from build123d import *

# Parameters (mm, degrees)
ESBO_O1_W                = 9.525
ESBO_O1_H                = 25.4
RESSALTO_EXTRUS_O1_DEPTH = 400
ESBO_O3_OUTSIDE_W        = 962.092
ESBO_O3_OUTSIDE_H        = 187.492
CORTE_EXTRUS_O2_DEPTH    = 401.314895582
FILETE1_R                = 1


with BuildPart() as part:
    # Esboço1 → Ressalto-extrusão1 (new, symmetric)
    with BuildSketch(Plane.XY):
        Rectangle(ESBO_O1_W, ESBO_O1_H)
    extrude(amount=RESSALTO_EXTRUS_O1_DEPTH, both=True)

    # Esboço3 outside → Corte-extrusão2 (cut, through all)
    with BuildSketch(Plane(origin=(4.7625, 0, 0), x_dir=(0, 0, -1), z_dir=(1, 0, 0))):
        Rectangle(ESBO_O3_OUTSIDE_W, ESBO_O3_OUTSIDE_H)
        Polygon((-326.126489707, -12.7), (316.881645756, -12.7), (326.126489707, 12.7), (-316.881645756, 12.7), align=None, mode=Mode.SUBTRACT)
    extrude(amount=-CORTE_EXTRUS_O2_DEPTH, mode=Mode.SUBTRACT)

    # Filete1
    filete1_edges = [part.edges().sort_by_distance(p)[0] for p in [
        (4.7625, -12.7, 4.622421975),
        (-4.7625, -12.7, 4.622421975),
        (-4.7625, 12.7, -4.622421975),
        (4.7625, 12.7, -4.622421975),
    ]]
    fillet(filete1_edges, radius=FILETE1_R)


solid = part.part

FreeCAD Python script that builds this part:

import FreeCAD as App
import Part
import Sketcher
Q = App.Units.Quantity


def edges_at(feature, points):
    """Names of the edges that pass closest to the given points."""
    edges = feature.Shape.Edges
    near = lambda p: min(range(len(edges)), key=lambda i: edges[i].distToShape(Part.Vertex(*p))[0])
    return sorted({f"Edge{near(p) + 1}" for p in points})

doc = App.newDocument("Part")
body = doc.addObject("PartDesign::Body", "Body")

# Sketch on XY plane
sketch1 = body.newObject("Sketcher::SketchObject", "Sketch")
sketch1.AttachmentSupport = (doc.getObject("XY_Plane"), [""])
sketch1.MapMode = "FlatFace"
sketch1.addGeometry([
    Part.LineSegment(App.Vector(-5, 13, 0), App.Vector(-5, -13, 0)),
    Part.LineSegment(App.Vector(-5, -13, 0), App.Vector(5, -13, 0)),
    Part.LineSegment(App.Vector(5, -13, 0), App.Vector(5, 13, 0)),
    Part.LineSegment(App.Vector(5, 13, 0), App.Vector(-5, 13, 0)),
], False)
sketch1.addConstraint([
    Sketcher.Constraint("Coincident", 0, 2, 1, 1),
    Sketcher.Constraint("Coincident", 1, 2, 2, 1),
    Sketcher.Constraint("Coincident", 2, 2, 3, 1),
    Sketcher.Constraint("Coincident", 3, 2, 0, 1),
    Sketcher.Constraint("Vertical", 0),
    Sketcher.Constraint("Horizontal", 1),
    Sketcher.Constraint("Vertical", 2),
    Sketcher.Constraint("Horizontal", 3),
    Sketcher.Constraint("Symmetric", 0, 2, 2, 2, -1, 1),
    Sketcher.Constraint("DistanceY", 0, 2, 0, 1, 25.4),
    Sketcher.Constraint("DistanceX", 1, 1, 1, 2, 9.525),
])
pad1 = body.newObject("PartDesign::Pad", "Pad")
pad1.Profile = sketch1
pad1.Length = 800
pad1.Midplane = True

# Sketch on YZ plane
sketch2 = body.newObject("Sketcher::SketchObject", "Sketch001")
sketch2.AttachmentSupport = (doc.getObject("YZ_Plane"), [""])
sketch2.MapMode = "FlatFace"
sketch2.AttachmentOffset = App.Placement(App.Vector(0, 0, 4.7625), App.Rotation())
sketch2.addGeometry([
    Part.LineSegment(App.Vector(94, 481, 0), App.Vector(-94, 481, 0)),  # 0
    Part.LineSegment(App.Vector(-94, 481, 0), App.Vector(-94, -481, 0)),  # 1
    Part.LineSegment(App.Vector(-94, -481, 0), App.Vector(94, -481, 0)),  # 2
    Part.LineSegment(App.Vector(94, -481, 0), App.Vector(94, 481, 0)),  # 3
    Part.LineSegment(App.Vector(-13, -317, 0), App.Vector(-13, 326, 0)),  # 4
    Part.LineSegment(App.Vector(-13, 326, 0), App.Vector(13, 317, 0)),  # 5
    Part.LineSegment(App.Vector(13, 317, 0), App.Vector(13, -326, 0)),  # 6
    Part.LineSegment(App.Vector(13, -326, 0), App.Vector(-13, -317, 0)),  # 7
], False)
sketch2.addConstraint([
    Sketcher.Constraint("Coincident", 0, 2, 1, 1),
    Sketcher.Constraint("Coincident", 1, 2, 2, 1),
    Sketcher.Constraint("Coincident", 2, 2, 3, 1),
    Sketcher.Constraint("Coincident", 3, 2, 0, 1),
    Sketcher.Constraint("Coincident", 4, 2, 5, 1),
    Sketcher.Constraint("Coincident", 5, 2, 6, 1),
    Sketcher.Constraint("Coincident", 6, 2, 7, 1),
    Sketcher.Constraint("Coincident", 7, 2, 4, 1),
    Sketcher.Constraint("Horizontal", 0),
    Sketcher.Constraint("Vertical", 1),
    Sketcher.Constraint("Horizontal", 2),
    Sketcher.Constraint("Vertical", 3),
    Sketcher.Constraint("Vertical", 4),
    Sketcher.Constraint("Vertical", 6),
    Sketcher.Constraint("Symmetric", 0, 2, 2, 2, -1, 1),
    Sketcher.Constraint("Symmetric", 4, 2, 6, 2, -1, 1),
    Sketcher.Constraint("Parallel", 5, 7),
    Sketcher.Constraint("Angle", 5, Q("-20 deg")),
    Sketcher.Constraint("DistanceX", 4, 2, -1, 1, 12.7),
    Sketcher.Constraint("DistanceX", 0, 2, 0, 1, 187.492),
    Sketcher.Constraint("DistanceY", 1, 2, 1, 1, 962.092),
    Sketcher.Constraint("DistanceY", 4, 1, 4, 2, 643.008135),
])
pocket1 = body.newObject("PartDesign::Pocket", "Pocket")
pocket1.Profile = sketch2
pocket1.Type = "ThroughAll"
doc.recompute()

fillet = body.newObject("PartDesign::Fillet", "Fillet")
fillet.Base = (pocket1, edges_at(pocket1, [
    (4.763, -12.7, 4.622),
    (-4.763, -12.7, 4.622),
    (-4.763, 12.7, -4.622),
    (4.763, 12.7, -4.622),
]))
fillet.Radius = 1

doc.recompute()
